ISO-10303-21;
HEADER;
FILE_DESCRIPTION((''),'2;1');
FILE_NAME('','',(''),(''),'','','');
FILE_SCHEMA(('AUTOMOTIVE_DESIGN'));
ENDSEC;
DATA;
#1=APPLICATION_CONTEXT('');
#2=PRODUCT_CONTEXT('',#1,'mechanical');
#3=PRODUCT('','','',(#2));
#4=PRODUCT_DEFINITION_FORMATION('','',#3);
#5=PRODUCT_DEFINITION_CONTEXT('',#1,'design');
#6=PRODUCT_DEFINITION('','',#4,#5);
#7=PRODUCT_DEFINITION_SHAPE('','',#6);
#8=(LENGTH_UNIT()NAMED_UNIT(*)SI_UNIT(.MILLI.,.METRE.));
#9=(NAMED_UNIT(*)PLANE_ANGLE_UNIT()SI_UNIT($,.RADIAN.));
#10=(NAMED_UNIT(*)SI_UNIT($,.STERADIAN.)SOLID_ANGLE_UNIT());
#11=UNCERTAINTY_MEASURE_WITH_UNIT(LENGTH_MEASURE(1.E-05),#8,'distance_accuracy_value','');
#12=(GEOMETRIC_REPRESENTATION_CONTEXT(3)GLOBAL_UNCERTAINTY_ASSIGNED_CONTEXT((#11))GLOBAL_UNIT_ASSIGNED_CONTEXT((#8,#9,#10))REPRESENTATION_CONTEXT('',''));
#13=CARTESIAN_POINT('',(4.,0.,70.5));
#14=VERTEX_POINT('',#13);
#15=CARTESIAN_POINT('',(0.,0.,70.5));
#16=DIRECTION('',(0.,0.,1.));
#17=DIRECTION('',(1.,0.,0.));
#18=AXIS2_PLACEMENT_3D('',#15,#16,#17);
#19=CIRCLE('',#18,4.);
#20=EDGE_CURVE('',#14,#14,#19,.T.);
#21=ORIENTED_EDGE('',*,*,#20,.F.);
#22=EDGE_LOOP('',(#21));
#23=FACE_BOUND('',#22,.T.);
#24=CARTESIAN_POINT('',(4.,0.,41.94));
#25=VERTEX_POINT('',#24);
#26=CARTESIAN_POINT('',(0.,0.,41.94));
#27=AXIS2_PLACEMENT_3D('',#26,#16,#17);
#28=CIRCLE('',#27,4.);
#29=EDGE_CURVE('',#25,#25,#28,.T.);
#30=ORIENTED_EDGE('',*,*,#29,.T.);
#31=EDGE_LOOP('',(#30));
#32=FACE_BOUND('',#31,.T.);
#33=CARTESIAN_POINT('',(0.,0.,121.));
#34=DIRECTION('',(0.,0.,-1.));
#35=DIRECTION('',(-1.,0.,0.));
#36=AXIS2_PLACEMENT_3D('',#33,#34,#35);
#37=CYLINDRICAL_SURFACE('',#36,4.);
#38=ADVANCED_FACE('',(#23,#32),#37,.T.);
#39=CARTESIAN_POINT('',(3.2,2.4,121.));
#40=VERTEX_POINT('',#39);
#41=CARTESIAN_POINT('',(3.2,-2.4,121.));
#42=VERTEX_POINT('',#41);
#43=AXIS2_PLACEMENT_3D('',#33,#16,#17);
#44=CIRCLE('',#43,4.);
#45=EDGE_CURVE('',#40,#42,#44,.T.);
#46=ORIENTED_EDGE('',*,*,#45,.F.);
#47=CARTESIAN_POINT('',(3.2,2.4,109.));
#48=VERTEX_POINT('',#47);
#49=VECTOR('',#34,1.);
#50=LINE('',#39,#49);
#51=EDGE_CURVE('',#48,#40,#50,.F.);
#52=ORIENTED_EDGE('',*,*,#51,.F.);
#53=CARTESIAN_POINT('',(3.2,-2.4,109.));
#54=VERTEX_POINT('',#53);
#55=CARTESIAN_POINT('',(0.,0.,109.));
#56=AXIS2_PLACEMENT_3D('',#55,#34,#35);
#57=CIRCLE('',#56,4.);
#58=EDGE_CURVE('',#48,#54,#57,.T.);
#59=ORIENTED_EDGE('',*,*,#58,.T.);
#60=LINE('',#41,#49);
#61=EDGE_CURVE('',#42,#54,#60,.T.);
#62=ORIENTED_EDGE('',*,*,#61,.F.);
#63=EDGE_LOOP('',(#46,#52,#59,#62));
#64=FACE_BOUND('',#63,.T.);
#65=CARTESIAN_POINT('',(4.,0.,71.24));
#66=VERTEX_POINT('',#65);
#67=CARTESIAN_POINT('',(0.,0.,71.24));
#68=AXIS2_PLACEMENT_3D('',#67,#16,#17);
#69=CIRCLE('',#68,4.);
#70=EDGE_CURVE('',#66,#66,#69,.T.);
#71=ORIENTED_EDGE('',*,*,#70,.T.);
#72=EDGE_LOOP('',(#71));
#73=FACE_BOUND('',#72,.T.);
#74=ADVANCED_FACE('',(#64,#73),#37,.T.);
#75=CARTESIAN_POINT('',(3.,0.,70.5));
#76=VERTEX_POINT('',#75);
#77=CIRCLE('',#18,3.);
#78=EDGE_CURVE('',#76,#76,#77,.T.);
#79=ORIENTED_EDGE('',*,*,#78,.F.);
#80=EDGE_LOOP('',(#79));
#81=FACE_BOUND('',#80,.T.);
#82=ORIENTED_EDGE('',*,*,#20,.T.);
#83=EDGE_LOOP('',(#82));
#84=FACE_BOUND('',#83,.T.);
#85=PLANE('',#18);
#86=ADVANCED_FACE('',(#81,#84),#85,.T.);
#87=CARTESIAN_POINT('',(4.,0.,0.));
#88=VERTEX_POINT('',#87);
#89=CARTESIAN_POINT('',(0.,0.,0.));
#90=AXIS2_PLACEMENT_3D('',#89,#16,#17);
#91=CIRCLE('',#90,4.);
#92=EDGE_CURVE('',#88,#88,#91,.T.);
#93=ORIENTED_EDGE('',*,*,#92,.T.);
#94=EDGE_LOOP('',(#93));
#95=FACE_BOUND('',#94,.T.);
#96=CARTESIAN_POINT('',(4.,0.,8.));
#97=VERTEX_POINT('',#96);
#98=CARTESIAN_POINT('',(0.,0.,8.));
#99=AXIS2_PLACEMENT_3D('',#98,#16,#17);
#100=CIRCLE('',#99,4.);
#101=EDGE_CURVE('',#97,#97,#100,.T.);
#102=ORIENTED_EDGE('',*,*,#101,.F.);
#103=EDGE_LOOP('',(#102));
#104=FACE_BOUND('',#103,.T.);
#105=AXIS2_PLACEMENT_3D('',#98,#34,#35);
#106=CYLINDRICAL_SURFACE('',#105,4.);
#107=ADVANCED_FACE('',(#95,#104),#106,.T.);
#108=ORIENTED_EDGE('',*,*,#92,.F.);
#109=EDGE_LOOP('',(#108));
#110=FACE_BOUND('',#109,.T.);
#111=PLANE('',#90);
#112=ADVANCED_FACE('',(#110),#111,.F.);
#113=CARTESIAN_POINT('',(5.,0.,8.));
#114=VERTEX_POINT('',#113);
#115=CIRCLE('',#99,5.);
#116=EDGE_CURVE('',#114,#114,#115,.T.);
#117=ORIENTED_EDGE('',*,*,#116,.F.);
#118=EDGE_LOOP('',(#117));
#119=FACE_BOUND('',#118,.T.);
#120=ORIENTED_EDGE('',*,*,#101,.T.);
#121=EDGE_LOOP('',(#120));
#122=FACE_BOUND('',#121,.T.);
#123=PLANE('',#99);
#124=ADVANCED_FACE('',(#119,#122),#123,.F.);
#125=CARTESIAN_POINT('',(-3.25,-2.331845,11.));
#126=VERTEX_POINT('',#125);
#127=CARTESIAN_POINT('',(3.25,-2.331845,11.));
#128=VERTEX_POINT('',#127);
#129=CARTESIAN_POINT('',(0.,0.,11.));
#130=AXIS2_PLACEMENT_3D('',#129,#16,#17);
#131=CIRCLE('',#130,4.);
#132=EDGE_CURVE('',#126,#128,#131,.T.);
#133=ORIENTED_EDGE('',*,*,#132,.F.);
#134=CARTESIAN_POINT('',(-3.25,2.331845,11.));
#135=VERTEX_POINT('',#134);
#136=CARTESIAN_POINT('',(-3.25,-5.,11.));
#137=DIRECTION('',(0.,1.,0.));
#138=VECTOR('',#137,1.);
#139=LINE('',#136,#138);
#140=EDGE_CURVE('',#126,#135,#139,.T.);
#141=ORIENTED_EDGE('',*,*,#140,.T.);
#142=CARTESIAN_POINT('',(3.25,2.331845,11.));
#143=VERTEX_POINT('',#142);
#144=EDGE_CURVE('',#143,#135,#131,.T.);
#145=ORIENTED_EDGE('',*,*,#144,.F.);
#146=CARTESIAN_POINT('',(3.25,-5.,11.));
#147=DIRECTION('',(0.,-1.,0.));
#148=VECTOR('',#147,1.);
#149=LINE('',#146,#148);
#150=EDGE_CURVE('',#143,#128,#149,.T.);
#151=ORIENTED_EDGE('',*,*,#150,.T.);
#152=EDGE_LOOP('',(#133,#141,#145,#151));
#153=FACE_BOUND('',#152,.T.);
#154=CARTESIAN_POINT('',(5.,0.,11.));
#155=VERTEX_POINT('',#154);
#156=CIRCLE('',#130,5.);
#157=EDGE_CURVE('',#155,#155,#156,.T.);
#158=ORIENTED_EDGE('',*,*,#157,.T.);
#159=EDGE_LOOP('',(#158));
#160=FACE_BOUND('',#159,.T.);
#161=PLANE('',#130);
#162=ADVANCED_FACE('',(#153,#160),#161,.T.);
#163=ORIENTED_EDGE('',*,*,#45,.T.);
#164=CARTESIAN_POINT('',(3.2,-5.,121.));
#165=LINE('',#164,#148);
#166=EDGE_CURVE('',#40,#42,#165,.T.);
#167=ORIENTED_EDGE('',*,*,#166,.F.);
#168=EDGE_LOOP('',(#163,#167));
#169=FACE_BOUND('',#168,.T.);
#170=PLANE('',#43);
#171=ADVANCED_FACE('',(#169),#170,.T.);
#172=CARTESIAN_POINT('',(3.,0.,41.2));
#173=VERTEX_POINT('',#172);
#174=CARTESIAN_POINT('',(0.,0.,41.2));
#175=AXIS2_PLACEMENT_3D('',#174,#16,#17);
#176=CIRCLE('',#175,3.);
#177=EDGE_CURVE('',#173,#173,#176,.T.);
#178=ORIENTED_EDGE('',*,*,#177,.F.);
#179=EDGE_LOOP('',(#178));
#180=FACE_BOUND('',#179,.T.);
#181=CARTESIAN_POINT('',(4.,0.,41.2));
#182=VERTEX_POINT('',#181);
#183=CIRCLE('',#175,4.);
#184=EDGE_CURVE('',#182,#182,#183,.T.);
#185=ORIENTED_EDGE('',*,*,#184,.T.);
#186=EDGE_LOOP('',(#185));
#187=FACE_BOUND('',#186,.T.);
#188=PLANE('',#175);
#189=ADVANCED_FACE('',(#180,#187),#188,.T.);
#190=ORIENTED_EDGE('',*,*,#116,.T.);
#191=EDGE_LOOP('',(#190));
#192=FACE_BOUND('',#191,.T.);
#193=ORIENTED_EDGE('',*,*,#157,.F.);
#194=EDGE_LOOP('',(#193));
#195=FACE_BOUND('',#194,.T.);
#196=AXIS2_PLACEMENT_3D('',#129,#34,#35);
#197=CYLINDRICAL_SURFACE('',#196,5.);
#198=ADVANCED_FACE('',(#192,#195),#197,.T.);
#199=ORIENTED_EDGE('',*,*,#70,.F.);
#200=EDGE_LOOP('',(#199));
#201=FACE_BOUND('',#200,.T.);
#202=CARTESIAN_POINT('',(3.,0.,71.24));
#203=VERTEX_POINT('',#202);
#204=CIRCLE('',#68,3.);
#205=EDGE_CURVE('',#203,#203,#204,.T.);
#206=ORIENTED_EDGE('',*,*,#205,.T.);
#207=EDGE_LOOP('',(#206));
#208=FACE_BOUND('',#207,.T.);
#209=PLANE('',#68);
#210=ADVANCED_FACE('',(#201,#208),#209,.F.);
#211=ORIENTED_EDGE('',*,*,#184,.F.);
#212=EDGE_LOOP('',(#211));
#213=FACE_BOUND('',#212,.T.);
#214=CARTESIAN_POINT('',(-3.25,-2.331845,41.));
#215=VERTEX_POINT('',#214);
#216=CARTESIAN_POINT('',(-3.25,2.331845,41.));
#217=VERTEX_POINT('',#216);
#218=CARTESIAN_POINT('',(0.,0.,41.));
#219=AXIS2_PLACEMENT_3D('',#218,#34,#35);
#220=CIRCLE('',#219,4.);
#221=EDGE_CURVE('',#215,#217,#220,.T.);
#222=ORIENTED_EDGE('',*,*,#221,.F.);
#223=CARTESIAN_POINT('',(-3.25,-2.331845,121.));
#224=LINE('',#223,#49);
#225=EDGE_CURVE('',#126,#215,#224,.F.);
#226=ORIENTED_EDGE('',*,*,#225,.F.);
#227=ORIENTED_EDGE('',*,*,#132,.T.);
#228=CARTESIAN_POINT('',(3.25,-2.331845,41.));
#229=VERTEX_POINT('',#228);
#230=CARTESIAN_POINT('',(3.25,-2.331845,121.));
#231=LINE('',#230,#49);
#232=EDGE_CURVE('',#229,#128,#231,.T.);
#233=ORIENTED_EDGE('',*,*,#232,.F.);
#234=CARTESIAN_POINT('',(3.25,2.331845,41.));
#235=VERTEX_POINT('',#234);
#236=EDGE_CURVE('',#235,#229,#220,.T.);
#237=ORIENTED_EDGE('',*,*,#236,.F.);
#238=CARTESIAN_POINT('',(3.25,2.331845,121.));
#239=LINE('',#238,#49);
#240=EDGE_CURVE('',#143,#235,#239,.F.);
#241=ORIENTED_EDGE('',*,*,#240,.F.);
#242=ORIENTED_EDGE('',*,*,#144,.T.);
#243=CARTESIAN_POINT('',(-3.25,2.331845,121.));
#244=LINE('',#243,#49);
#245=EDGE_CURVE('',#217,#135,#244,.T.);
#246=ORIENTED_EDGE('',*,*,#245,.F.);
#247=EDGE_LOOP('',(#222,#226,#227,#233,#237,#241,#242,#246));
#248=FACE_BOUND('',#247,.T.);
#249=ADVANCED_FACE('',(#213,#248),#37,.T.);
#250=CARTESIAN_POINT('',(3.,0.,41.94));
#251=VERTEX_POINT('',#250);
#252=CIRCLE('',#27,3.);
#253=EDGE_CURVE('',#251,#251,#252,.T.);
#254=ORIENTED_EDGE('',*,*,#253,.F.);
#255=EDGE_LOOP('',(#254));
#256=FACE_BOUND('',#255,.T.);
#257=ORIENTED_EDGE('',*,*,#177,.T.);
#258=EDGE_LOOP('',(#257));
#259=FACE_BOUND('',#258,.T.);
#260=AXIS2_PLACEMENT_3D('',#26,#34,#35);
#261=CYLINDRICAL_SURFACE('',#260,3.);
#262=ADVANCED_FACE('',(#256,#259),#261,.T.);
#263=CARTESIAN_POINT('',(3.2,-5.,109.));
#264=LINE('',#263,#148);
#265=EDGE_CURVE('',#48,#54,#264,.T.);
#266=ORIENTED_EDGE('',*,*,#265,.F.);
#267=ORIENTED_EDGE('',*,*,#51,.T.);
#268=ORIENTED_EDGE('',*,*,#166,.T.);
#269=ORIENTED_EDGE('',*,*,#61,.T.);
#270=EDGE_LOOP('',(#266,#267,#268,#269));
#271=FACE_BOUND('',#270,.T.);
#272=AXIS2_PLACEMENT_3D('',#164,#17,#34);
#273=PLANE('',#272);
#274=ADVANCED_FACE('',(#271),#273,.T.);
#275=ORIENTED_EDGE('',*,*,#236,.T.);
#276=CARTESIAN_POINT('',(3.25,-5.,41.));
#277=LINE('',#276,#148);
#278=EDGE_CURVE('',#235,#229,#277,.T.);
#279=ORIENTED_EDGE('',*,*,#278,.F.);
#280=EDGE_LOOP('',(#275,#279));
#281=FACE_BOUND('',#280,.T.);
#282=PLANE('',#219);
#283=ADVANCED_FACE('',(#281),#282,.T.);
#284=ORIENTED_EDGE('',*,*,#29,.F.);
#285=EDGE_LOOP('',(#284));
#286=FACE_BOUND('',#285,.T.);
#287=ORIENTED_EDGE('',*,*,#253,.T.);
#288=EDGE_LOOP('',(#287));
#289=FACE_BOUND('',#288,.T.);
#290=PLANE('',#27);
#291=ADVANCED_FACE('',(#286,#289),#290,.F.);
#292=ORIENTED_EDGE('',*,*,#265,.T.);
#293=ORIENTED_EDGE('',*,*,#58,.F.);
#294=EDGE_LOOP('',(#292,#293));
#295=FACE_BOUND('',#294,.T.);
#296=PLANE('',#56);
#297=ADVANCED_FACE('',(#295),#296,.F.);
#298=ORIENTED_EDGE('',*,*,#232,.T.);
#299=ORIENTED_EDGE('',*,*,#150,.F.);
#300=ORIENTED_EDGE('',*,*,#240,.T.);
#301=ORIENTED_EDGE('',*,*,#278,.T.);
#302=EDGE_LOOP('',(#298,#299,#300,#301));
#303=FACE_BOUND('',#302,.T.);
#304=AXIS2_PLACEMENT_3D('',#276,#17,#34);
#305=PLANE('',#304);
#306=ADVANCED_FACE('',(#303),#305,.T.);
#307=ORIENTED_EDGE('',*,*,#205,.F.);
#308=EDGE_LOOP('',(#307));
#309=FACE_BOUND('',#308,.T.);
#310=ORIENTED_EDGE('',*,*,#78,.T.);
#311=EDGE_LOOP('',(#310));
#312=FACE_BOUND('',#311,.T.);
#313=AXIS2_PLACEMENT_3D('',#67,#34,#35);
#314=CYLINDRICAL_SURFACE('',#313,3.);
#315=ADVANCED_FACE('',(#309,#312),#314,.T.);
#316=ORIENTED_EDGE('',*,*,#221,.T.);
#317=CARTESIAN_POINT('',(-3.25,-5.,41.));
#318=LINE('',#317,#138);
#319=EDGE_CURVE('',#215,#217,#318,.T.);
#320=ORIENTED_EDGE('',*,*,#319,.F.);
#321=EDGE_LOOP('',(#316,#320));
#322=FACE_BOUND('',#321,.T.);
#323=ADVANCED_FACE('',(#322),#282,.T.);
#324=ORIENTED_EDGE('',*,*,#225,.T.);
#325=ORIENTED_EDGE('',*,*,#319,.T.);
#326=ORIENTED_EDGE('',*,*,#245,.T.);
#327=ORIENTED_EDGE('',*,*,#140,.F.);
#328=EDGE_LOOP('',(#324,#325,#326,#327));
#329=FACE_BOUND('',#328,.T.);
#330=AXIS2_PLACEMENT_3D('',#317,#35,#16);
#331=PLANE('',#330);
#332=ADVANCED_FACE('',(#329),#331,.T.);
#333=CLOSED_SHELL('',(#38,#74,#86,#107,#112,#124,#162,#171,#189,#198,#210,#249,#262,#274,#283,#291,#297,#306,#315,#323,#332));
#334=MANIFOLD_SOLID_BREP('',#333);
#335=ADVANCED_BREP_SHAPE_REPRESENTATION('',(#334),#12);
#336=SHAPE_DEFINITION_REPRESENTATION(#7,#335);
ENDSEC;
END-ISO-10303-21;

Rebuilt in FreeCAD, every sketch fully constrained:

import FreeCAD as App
import Part
import Sketcher
from FreeCAD import Vector
Q = App.Units.Quantity


def add_polygon(sketch, points):
    """Adds a closed chain of lines whose ends are joined by coincident constraints."""
    first, n = sketch.GeometryCount, len(points)
    for a, b in zip(points, points[1:] + points[:1]):
        sketch.addGeometry(Part.LineSegment(App.Vector(*a, 0), App.Vector(*b, 0)), False)
    for i in range(n):
        sketch.addConstraint(Sketcher.Constraint("Coincident", first + i, 2, first + (i + 1) % n, 1))

doc = App.newDocument("Part")
body = doc.addObject("PartDesign::Body", "Body")

# Sketch on XY plane
sketch1 = body.newObject("Sketcher::SketchObject", "Sketch")
sketch1.AttachmentSupport = (doc.getObject("XY_Plane"), [""])
sketch1.MapMode = "FlatFace"
sketch1.addGeometry(Part.Circle(Vector(0, 0, 0), Vector(0, 0, 1), 4), False)
sketch1.addConstraint([
    Sketcher.Constraint("Coincident", 0, 3, -1, 1),
    Sketcher.Constraint("Diameter", 0, Q("8 mm")),
])
pad1 = body.newObject("PartDesign::Pad", "Pad")
pad1.Profile = sketch1
pad1.Length = 8

# Sketch on XY plane
sketch2 = body.newObject("Sketcher::SketchObject", "Sketch001")
sketch2.AttachmentSupport = (doc.getObject("XY_Plane"), [""])
sketch2.MapMode = "FlatFace"
sketch2.AttachmentOffset = App.Placement(Vector(0, 0, 8), App.Rotation())
sketch2.addGeometry(Part.Circle(Vector(0, 0, 0), Vector(0, 0, 1), 5), False)
sketch2.addConstraint([
    Sketcher.Constraint("Coincident", 0, 3, -1, 1),
    Sketcher.Constraint("Diameter", 0, Q("10 mm")),
])
pad2 = body.newObject("PartDesign::Pad", "Pad001")
pad2.Profile = sketch2
pad2.Length = 3

# Sketch on XY plane
sketch3 = body.newObject("Sketcher::SketchObject", "Sketch002")
sketch3.AttachmentSupport = (doc.getObject("XY_Plane"), [""])
sketch3.MapMode = "FlatFace"
sketch3.AttachmentOffset = App.Placement(Vector(0, 0, 11), App.Rotation())
sketch3.addGeometry(Part.Circle(Vector(0, 0, 0), Vector(0, 0, 1), 4), False)
sketch3.addConstraint([
    Sketcher.Constraint("Coincident", 0, 3, -1, 1),
    Sketcher.Constraint("Diameter", 0, Q("8 mm")),
])
pad3 = body.newObject("PartDesign::Pad", "Pad002")
pad3.Profile = sketch3
pad3.Length = 110

# Sketch on XY plane
sketch4 = body.newObject("Sketcher::SketchObject", "Sketch003")
sketch4.AttachmentSupport = (doc.getObject("XY_Plane"), [""])
sketch4.MapMode = "FlatFace"
sketch4.AttachmentOffset = App.Placement(Vector(0, 0, 41.2), App.Rotation())
sketch4.addGeometry([
    Part.Circle(Vector(0, 0, 0), Vector(0, 0, 1), 5),
    Part.Circle(Vector(0, 0, 0), Vector(0, 0, 1), 3),
], False)
sketch4.addConstraint([
    Sketcher.Constraint("Coincident", 0, 3, -1, 1),
    Sketcher.Constraint("Coincident", 1, 3, -1, 1),
    Sketcher.Constraint("Diameter", 0, Q("10 mm")),
    Sketcher.Constraint("Diameter", 1, Q("6 mm")),
])
pocket1 = body.newObject("PartDesign::Pocket", "Pocket")
pocket1.Profile = sketch4
pocket1.Length = 0.74
pocket1.Reversed = True

# Sketch on XY plane
sketch5 = body.newObject("Sketcher::SketchObject", "Sketch004")
sketch5.AttachmentSupport = (doc.getObject("XY_Plane"), [""])
sketch5.MapMode = "FlatFace"
sketch5.AttachmentOffset = App.Placement(Vector(0, 0, 70.5), App.Rotation())
sketch5.addGeometry([
    Part.Circle(Vector(0, 0, 0), Vector(0, 0, 1), 5),
    Part.Circle(Vector(0, 0, 0), Vector(0, 0, 1), 3),
], False)
sketch5.addConstraint([
    Sketcher.Constraint("Coincident", 0, 3, -1, 1),
    Sketcher.Constraint("Coincident", 1, 3, -1, 1),
    Sketcher.Constraint("Diameter", 0, Q("10 mm")),
    Sketcher.Constraint("Diameter", 1, Q("6 mm")),
])
pocket2 = body.newObject("PartDesign::Pocket", "Pocket001")
pocket2.Profile = sketch5
pocket2.Length = 0.74
pocket2.Reversed = True

# Sketch on XY plane
sketch6 = body.newObject("Sketcher::SketchObject", "Sketch005")
sketch6.AttachmentSupport = (doc.getObject("XY_Plane"), [""])
sketch6.MapMode = "FlatFace"
sketch6.AttachmentOffset = App.Placement(Vector(0, 0, 11), App.Rotation())
add_polygon(sketch6, [(3.2, 5), (3.2, -5), (6.2, -5), (6.2, 5)])  # lines 0-3
add_polygon(sketch6, [(-6.2, 5), (-6.2, -5), (-3.2, -5), (-3.2, 5)])  # lines 4-7
sketch6.addConstraint([
    Sketcher.Constraint("Vertical", 0),
    Sketcher.Constraint("Horizontal", 1),
    Sketcher.Constraint("Vertical", 2),
    Sketcher.Constraint("Horizontal", 3),
    Sketcher.Constraint("Vertical", 4),
    Sketcher.Constraint("Horizontal", 5),
    Sketcher.Constraint("Vertical", 6),
    Sketcher.Constraint("Horizontal", 7),
    Sketcher.Constraint("Symmetric", 2, 2, 4, 2, -1, 1),
    Sketcher.Constraint("Symmetric", 0, 2, 6, 2, -1, 1),
    Sketcher.Constraint("Horizontal", 1, 2, 4, 2),
    Sketcher.Constraint("DistanceX", 1, 1, 1, 2, Q("3 mm")),
    Sketcher.Constraint("DistanceY", 0, 2, 0, 1, Q("10 mm")),
    Sketcher.Constraint("DistanceX", 4, 2, 0, 2, Q("9.5 mm")),
])
pocket3 = body.newObject("PartDesign::Pocket", "Pocket002")
pocket3.Profile = sketch6
pocket3.Length = 30
pocket3.Reversed = True

# Sketch on XY plane
sketch7 = body.newObject("Sketcher::SketchObject", "Sketch006")
sketch7.AttachmentSupport = (doc.getObject("XY_Plane"), [""])
sketch7.MapMode = "FlatFace"
sketch7.AttachmentOffset = App.Placement(Vector(0, 0, 109), App.Rotation())
add_polygon(sketch7, [(3.2, 5), (3.2, -5), (6.2, -5), (6.2, 5)])  # lines 0-3
sketch7.addConstraint([
    Sketcher.Constraint("Vertical", 0),
    Sketcher.Constraint("Horizontal", 1),
    Sketcher.Constraint("Vertical", 2),
    Sketcher.Constraint("Horizontal", 3),
    Sketcher.Constraint("DistanceX", 1, 1, 1, 2, Q("3 mm")),
    Sketcher.Constraint("DistanceY", 0, 2, 0, 1, Q("10 mm")),
    Sketcher.Constraint("DistanceY", 0, 2, -1, 1, Q("5 mm")),
    Sketcher.Constraint("DistanceX", -1, 1, 0, 2, Q("3.2 mm")),
])
pocket4 = body.newObject("PartDesign::Pocket", "Pocket003")
pocket4.Profile = sketch7
pocket4.Length = 12
pocket4.Reversed = True

doc.recompute()
